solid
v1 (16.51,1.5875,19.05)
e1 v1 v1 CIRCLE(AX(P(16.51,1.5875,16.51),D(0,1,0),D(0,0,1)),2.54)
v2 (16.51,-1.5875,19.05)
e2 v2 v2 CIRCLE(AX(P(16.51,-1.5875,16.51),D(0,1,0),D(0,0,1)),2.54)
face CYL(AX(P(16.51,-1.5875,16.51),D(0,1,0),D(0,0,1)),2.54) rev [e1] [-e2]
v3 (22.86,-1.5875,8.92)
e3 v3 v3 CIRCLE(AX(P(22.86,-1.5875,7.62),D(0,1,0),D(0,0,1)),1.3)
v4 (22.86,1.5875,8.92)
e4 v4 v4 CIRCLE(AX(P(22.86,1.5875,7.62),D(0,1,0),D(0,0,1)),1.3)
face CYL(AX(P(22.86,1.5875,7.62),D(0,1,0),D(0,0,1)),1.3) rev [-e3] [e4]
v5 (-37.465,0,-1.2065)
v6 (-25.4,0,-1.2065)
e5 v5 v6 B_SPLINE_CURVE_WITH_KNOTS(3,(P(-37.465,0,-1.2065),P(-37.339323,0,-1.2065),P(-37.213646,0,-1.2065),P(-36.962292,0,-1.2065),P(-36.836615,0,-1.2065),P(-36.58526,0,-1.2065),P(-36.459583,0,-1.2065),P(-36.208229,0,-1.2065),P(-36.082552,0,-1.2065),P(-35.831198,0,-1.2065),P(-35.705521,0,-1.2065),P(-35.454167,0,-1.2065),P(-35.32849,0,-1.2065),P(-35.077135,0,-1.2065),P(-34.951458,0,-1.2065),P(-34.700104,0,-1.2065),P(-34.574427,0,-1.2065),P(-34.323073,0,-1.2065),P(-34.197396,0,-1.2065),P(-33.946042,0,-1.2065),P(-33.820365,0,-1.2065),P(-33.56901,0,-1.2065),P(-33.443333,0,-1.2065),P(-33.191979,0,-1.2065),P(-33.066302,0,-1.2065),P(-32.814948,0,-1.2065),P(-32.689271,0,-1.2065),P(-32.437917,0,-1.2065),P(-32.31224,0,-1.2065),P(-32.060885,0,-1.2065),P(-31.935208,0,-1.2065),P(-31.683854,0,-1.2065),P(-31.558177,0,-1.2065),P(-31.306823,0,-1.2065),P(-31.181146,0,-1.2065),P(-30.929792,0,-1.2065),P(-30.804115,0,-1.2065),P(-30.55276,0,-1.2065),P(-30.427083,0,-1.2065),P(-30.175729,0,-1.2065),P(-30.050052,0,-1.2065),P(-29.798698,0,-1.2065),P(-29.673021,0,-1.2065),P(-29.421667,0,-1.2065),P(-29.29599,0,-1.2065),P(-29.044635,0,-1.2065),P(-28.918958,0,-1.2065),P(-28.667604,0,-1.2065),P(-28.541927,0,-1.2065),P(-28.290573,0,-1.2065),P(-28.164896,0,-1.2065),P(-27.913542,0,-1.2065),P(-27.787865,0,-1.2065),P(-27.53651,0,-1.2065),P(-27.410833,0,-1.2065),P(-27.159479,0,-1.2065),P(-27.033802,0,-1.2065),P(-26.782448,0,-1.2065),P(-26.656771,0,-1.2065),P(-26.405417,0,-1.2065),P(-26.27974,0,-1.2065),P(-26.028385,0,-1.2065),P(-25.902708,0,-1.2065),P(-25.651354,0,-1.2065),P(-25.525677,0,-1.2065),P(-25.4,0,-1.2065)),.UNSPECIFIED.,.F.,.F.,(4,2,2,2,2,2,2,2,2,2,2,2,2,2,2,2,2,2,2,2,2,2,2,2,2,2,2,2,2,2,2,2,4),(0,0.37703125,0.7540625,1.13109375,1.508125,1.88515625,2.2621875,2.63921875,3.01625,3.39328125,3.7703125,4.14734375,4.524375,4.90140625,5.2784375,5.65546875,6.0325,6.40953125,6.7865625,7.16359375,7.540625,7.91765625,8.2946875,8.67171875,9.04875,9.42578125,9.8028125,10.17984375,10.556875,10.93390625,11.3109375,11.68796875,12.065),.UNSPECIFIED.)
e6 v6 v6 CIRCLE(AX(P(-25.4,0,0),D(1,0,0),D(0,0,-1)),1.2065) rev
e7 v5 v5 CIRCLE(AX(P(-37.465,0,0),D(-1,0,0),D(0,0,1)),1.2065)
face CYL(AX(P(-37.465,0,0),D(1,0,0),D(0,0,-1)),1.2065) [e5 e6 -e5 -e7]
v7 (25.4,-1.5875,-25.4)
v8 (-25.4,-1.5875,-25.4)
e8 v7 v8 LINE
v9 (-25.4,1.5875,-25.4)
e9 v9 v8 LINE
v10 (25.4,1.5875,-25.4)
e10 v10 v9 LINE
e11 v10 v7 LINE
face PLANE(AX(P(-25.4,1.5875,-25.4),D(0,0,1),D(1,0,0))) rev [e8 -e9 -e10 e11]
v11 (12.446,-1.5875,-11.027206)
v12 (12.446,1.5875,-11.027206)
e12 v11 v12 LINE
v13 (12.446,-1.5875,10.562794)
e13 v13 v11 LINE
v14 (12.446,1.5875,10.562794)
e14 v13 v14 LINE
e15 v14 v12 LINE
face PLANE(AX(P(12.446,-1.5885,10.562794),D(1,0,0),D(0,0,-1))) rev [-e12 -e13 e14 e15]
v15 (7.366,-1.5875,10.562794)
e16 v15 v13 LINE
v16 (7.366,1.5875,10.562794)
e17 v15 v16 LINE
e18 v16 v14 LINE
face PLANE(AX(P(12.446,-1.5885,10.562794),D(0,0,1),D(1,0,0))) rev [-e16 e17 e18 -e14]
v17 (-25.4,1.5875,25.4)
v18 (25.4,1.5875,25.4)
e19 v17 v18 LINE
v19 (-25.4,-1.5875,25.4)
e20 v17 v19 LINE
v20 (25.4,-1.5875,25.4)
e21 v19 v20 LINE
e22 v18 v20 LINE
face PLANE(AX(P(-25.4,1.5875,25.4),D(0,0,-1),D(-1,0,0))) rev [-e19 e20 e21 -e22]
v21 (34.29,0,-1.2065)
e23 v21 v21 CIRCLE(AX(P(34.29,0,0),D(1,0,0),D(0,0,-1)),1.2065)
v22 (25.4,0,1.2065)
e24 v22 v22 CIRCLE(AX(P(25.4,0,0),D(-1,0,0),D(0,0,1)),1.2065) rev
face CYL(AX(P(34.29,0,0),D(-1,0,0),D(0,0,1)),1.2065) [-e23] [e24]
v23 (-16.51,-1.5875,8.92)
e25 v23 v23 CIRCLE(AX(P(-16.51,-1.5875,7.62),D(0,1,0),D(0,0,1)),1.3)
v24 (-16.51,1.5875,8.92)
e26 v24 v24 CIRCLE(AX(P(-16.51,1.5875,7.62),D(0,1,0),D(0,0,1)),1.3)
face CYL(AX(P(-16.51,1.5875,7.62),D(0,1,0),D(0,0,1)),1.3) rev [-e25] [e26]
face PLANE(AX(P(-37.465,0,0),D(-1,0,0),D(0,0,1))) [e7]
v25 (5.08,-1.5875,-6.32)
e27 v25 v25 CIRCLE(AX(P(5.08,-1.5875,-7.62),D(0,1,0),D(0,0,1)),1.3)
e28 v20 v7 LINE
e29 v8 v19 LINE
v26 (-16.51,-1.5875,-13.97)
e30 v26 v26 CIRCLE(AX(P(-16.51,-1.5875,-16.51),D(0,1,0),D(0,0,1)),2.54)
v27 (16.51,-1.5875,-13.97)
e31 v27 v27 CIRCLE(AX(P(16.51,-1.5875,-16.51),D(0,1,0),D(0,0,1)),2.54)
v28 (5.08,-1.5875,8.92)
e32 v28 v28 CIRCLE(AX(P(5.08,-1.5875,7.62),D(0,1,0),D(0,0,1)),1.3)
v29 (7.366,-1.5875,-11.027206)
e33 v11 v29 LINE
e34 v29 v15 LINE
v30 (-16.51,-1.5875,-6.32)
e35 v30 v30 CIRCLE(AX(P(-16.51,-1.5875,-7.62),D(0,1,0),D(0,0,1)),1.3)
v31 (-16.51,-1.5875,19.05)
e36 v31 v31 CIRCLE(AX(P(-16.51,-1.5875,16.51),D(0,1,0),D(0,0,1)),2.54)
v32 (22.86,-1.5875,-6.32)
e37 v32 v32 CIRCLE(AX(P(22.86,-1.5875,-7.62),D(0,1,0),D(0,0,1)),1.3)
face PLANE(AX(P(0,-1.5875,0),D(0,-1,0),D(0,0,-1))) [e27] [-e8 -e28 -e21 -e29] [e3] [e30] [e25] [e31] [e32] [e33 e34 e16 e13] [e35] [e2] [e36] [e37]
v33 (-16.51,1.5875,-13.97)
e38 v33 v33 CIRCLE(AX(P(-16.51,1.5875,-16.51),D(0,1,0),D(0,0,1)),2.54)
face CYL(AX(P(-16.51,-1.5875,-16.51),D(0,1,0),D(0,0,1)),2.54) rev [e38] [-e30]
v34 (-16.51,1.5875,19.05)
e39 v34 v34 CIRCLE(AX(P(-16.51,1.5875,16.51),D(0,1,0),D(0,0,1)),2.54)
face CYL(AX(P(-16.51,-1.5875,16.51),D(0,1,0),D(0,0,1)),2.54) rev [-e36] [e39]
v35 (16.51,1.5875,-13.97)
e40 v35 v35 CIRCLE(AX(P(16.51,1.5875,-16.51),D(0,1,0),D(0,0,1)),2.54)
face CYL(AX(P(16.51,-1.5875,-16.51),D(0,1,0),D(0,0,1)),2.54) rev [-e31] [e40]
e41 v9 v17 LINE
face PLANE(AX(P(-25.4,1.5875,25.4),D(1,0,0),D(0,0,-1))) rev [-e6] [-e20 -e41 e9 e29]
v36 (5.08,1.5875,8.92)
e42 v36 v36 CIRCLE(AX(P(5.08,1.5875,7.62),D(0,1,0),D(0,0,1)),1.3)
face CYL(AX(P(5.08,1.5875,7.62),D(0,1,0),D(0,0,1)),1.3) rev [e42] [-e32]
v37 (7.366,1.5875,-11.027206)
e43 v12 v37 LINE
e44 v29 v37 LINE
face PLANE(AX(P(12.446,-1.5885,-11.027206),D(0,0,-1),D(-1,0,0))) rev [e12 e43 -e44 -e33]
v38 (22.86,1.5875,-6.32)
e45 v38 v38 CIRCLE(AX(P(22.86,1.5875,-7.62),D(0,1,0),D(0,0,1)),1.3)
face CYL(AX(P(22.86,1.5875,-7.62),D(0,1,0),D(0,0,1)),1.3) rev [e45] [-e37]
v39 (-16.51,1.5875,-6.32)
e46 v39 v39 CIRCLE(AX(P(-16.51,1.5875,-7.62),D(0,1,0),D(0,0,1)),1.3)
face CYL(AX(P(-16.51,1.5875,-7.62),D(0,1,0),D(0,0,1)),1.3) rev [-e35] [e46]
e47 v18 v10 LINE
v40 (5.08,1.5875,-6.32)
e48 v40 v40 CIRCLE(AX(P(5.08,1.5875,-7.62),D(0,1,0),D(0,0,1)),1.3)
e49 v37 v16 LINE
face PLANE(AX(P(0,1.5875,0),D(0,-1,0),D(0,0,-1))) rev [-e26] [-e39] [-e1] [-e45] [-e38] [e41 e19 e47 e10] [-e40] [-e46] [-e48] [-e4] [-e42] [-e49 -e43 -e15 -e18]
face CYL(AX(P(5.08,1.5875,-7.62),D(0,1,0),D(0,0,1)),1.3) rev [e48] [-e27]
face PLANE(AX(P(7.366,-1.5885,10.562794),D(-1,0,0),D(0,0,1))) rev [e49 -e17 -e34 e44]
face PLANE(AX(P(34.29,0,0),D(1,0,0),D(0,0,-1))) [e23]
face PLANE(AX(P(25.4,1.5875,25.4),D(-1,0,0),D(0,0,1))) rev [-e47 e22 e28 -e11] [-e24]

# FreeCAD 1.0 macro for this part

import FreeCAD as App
import Part
import Sketcher
from FreeCAD import Vector
Q = App.Units.Quantity

doc = App.newDocument("Part")
body = doc.addObject("PartDesign::Body", "Body")

# Sketch on XZ plane
sketch1 = doc.addObject("Sketcher::SketchObject", "Sketch")
body.addObject(sketch1)
sketch1.AttachmentSupport = (doc.XZ_Plane, [""])
sketch1.MapMode = "FlatFace"
sketch1.addGeometry(Part.LineSegment(Vector(-25.4, -25.4, 0), Vector(-25.4, 25.4, 0)), False)
sketch1.addGeometry(Part.LineSegment(Vector(-25.4, 25.4, 0), Vector(25.4, 25.4, 0)), False)
sketch1.addGeometry(Part.LineSegment(Vector(25.4, 25.4, 0), Vector(25.4, -25.4, 0)), False)
sketch1.addGeometry(Part.LineSegment(Vector(25.4, -25.4, 0), Vector(-25.4, -25.4, 0)), False)
sketch1.addConstraint(Sketcher.Constraint("Coincident", 0, 2, 1, 1))
sketch1.addConstraint(Sketcher.Constraint("Coincident", 1, 2, 2, 1))
sketch1.addConstraint(Sketcher.Constraint("Coincident", 2, 2, 3, 1))
sketch1.addConstraint(Sketcher.Constraint("Coincident", 3, 2, 0, 1))
sketch1.addConstraint(Sketcher.Constraint("Vertical", 0))
sketch1.addConstraint(Sketcher.Constraint("Horizontal", 1))
sketch1.addConstraint(Sketcher.Constraint("Vertical", 2))
sketch1.addConstraint(Sketcher.Constraint("Horizontal", 3))
sketch1.addConstraint(Sketcher.Constraint("Symmetric", 0, 2, 2, 2, -1, 1))
sketch1.addConstraint(Sketcher.Constraint("Equal", 3, 0))
sketch1.addConstraint(Sketcher.Constraint("DistanceX", 1, 1, 1, 2, Q("2 in")))
pad1 = doc.addObject("PartDesign::Pad", "Pad")
body.addObject(pad1)
pad1.Profile = sketch1
pad1.Length = Q("0.125 in")
pad1.Midplane = True

# Sketch on YZ plane
sketch2 = doc.addObject("Sketcher::SketchObject", "Sketch001")
body.addObject(sketch2)
sketch2.AttachmentSupport = (doc.YZ_Plane, [""])
sketch2.MapMode = "FlatFace"
sketch2.AttachmentOffset = App.Placement(Vector(0, 0, 1 * 25.4), App.Rotation())
sketch2.addGeometry(Part.Circle(Vector(0, 0, 0), Vector(0, 0, 1), 1.2065), False)
sketch2.addConstraint(Sketcher.Constraint("Coincident", 0, 3, -1, 1))
sketch2.addConstraint(Sketcher.Constraint("Diameter", 0, Q("0.095 in")))
pad2 = doc.addObject("PartDesign::Pad", "Pad001")
body.addObject(pad2)
pad2.Profile = sketch2
pad2.Length = Q("0.35 in")

# Sketch on XZ plane
sketch3 = doc.addObject("Sketcher::SketchObject", "Sketch002")
body.addObject(sketch3)
sketch3.AttachmentSupport = (doc.XZ_Plane, [""])
sketch3.MapMode = "FlatFace"
sketch3.AttachmentOffset = App.Placement(Vector(0, 0, -0.0625 * 25.4), App.Rotation())
sketch3.addGeometry(Part.Circle(Vector(-16.51, -16.51, 0), Vector(0, 0, 1), 2.54), False)
sketch3.addGeometry(Part.Circle(Vector(16.51, -16.51, 0), Vector(0, 0, 1), 2.54), False)
sketch3.addGeometry(Part.Circle(Vector(16.51, 16.51, 0), Vector(0, 0, 1), 2.54), False)
sketch3.addGeometry(Part.Circle(Vector(-16.51, 16.51, 0), Vector(0, 0, 1), 2.54), False)
sketch3.addConstraint(Sketcher.Constraint("Equal", 0, 1))
sketch3.addConstraint(Sketcher.Constraint("Equal", 1, 2))
sketch3.addConstraint(Sketcher.Constraint("Equal", 2, 3))
sketch3.addConstraint(Sketcher.Constraint("Symmetric", 0, 3, 2, 3, -1, 1))
sketch3.addConstraint(Sketcher.Constraint("Symmetric", 1, 3, 3, 3, -1, 1))
sketch3.addConstraint(Sketcher.Constraint("Symmetric", 0, 3, 1, 3, -2))
sketch3.addConstraint(Sketcher.Constraint("Diameter", 0, Q("0.2 in")))
sketch3.addConstraint(Sketcher.Constraint("DistanceX", 0, 3, 1, 3, Q("1.3 in")))
sketch3.addConstraint(Sketcher.Constraint("DistanceY", 1, 3, 2, 3, Q("1.3 in")))
pocket1 = doc.addObject("PartDesign::Pocket", "Pocket")
body.addObject(pocket1)
pocket1.Profile = sketch3
pocket1.Type = "ThroughAll"
pocket1.Reversed = True

# Sketch on YZ plane
sketch4 = doc.addObject("Sketcher::SketchObject", "Sketch003")
body.addObject(sketch4)
sketch4.AttachmentSupport = (doc.YZ_Plane, [""])
sketch4.MapMode = "FlatFace"
sketch4.AttachmentOffset = App.Placement(Vector(0, 0, -1.475 * 25.4), App.Rotation())
sketch4.addGeometry(Part.Circle(Vector(0, 0, 0), Vector(0, 0, 1), 1.2065), False)
sketch4.addConstraint(Sketcher.Constraint("Coincident", 0, 3, -1, 1))
sketch4.addConstraint(Sketcher.Constraint("Diameter", 0, Q("0.095 in")))
pad3 = doc.addObject("PartDesign::Pad", "Pad002")
body.addObject(pad3)
pad3.Profile = sketch4
pad3.Length = Q("0.475 in")

# Sketch on XZ plane
sketch5 = doc.addObject("Sketcher::SketchObject", "Sketch004")
body.addObject(sketch5)
sketch5.AttachmentSupport = (doc.XZ_Plane, [""])
sketch5.MapMode = "FlatFace"
sketch5.AttachmentOffset = App.Placement(Vector(0, 0, -0.0625 * 25.4), App.Rotation())
sketch5.addGeometry(Part.Circle(Vector(-16.51, 7.62, 0), Vector(0, 0, 1), 1.3), False)
sketch5.addGeometry(Part.Circle(Vector(-16.51, -7.62, 0), Vector(0, 0, 1), 1.3), False)
sketch5.addGeometry(Part.Circle(Vector(5.08, 7.62, 0), Vector(0, 0, 1), 1.3), False)
sketch5.addGeometry(Part.Circle(Vector(5.08, -7.62, 0), Vector(0, 0, 1), 1.3), False)
sketch5.addGeometry(Part.Circle(Vector(22.86, -7.62, 0), Vector(0, 0, 1), 1.3), False)
sketch5.addGeometry(Part.Circle(Vector(22.86, 7.62, 0), Vector(0, 0, 1), 1.3), False)
sketch5.addConstraint(Sketcher.Constraint("Equal", 0, 1))
sketch5.addConstraint(Sketcher.Constraint("Equal", 1, 2))
sketch5.addConstraint(Sketcher.Constraint("Equal", 2, 3))
sketch5.addConstraint(Sketcher.Constraint("Equal", 3, 4))
sketch5.addConstraint(Sketcher.Constraint("Equal", 4, 5))
sketch5.addConstraint(Sketcher.Constraint("Symmetric", 0, 3, 1, 3, -1))
sketch5.addConstraint(Sketcher.Constraint("Symmetric", 2, 3, 3, 3, -1))
sketch5.addConstraint(Sketcher.Constraint("Symmetric", 4, 3, 5, 3, -1))
sketch5.addConstraint(Sketcher.Constraint("Horizontal", 0, 3, 2, 3))
sketch5.addConstraint(Sketcher.Constraint("Horizontal", 3, 3, 4, 3))
sketch5.addConstraint(Sketcher.Constraint("DistanceY", -1, 1, 0, 3, Q("0.3 in")))
sketch5.addConstraint(Sketcher.Constraint("DistanceX", -1, 1, 2, 3, Q("0.2 in")))
sketch5.addConstraint(Sketcher.Constraint("DistanceX", -1, 1, 4, 3, Q("0.9 in")))
sketch5.addConstraint(Sketcher.Constraint("Diameter", 0, Q("2.6 mm")))
sketch5.addConstraint(Sketcher.Constraint("DistanceX", 0, 3, -1, 1, Q("0.65 in")))
doc.recompute()
hole = doc.addObject("PartDesign::Hole", "Hole")
body.addObject(hole)
hole.Profile = sketch5
hole.ThreadType = "None"
hole.Diameter = 2.6
hole.DepthType = "ThroughAll"
hole.Reversed = True

# Sketch on XZ plane
sketch6 = doc.addObject("Sketcher::SketchObject", "Sketch005")
body.addObject(sketch6)
sketch6.AttachmentSupport = (doc.XZ_Plane, [""])
sketch6.MapMode = "FlatFace"
sketch6.AttachmentOffset = App.Placement(Vector(0, 0, -0.0625 * 25.4), App.Rotation())
sketch6.addGeometry(Part.LineSegment(Vector(7.366, -11.027206, 0), Vector(7.366, 10.562794, 0)), False)
sketch6.addGeometry(Part.LineSegment(Vector(7.366, 10.562794, 0), Vector(12.446, 10.562794, 0)), False)
sketch6.addGeometry(Part.LineSegment(Vector(12.446, 10.562794, 0), Vector(12.446, -11.027206, 0)), False)
sketch6.addGeometry(Part.LineSegment(Vector(12.446, -11.027206, 0), Vector(7.366, -11.027206, 0)), False)
sketch6.addConstraint(Sketcher.Constraint("Coincident", 0, 2, 1, 1))
sketch6.addConstraint(Sketcher.Constraint("Coincident", 1, 2, 2, 1))
sketch6.addConstraint(Sketcher.Constraint("Coincident", 2, 2, 3, 1))
sketch6.addConstraint(Sketcher.Constraint("Coincident", 3, 2, 0, 1))
sketch6.addConstraint(Sketcher.Constraint("Vertical", 0))
sketch6.addConstraint(Sketcher.Constraint("Horizontal", 1))
sketch6.addConstraint(Sketcher.Constraint("Vertical", 2))
sketch6.addConstraint(Sketcher.Constraint("Horizontal", 3))
sketch6.addConstraint(Sketcher.Constraint("DistanceX", 1, 1, 1, 2, Q("0.2 in")))
sketch6.addConstraint(Sketcher.Constraint("DistanceY", 0, 1, 0, 2, Q("0.85 in")))
sketch6.addConstraint(Sketcher.Constraint("DistanceX", -1, 1, 0, 2, Q("0.29 in")))
sketch6.addConstraint(Sketcher.Constraint("DistanceY", -1, 1, 0, 2, Q("10.562794 mm")))
pocket2 = doc.addObject("PartDesign::Pocket", "Pocket001")
body.addObject(pocket2)
pocket2.Profile = sketch6
pocket2.Type = "UpToFirst"
pocket2.Reversed = True

doc.recompute()
